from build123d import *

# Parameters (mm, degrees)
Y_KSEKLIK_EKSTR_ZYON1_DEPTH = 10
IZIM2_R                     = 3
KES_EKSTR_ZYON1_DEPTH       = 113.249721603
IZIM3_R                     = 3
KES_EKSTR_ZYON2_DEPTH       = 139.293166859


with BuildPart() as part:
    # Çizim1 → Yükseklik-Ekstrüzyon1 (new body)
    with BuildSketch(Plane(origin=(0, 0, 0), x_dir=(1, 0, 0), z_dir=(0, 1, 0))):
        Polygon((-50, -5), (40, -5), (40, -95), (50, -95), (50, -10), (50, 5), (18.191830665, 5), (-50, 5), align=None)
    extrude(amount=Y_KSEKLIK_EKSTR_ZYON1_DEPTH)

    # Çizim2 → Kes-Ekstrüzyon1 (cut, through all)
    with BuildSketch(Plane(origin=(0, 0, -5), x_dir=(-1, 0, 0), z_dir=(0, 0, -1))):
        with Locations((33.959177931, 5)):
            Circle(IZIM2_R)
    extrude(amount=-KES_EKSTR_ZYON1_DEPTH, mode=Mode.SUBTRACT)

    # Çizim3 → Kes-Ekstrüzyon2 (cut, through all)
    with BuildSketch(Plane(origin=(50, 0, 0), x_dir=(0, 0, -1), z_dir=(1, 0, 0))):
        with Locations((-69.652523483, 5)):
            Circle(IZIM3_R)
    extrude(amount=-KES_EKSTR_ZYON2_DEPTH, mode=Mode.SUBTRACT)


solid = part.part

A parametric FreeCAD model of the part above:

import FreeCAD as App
import Part
import Sketcher

V = App.Vector


def add_polygon(sketch, points):
    """Adds a closed chain of lines whose ends are joined by coincident constraints."""
    first, n = sketch.GeometryCount, len(points)
    for a, b in zip(points, points[1:] + points[:1]):
        sketch.addGeometry(Part.LineSegment(App.Vector(*a, 0), App.Vector(*b, 0)), False)
    for i in range(n):
        sketch.addConstraint(Sketcher.Constraint("Coincident", first + i, 2, first + (i + 1) % n, 1))

doc = App.newDocument("Part")
params = doc.addObject("Spreadsheet::Sheet", "Params")
for row, (alias, value) in enumerate([
    ("sketch1_width", "90 mm"),
    ("sketch1_width2", "10 mm"),
    ("pad1_length", "10 mm"),
    ("sketch2_diameter", "6 mm"),
    ("sketch3_diameter", "6 mm"),
], start=1):
    params.set(f"A{row}", alias)
    params.set(f"B{row}", "=" + value)
    params.setAlias(f"B{row}", alias)

body = doc.addObject("PartDesign::Body", "Body")

# Sketch on XZ plane
sketch1 = doc.addObject("Sketcher::SketchObject", "Sketch")
body.addObject(sketch1)
sketch1.AttachmentSupport = (doc.XZ_Plane, [""])
sketch1.MapMode = "FlatFace"
add_polygon(sketch1, [(-50, 5), (40, 5), (40, 95), (50, 95), (50, -5), (-50, -5)])  # lines 0-5
sketch1.addConstraint([
    Sketcher.Constraint("Horizontal", 0),
    Sketcher.Constraint("Vertical", 1),
    Sketcher.Constraint("Horizontal", 2),
    Sketcher.Constraint("Vertical", 3),
    Sketcher.Constraint("Horizontal", 4),
    Sketcher.Constraint("Vertical", 5),
    Sketcher.Constraint("Symmetric", 3, 2, 5, 2, -1, 1),
    Sketcher.Constraint("Equal", 0, 1),
    Sketcher.Constraint("Equal", 4, 3),
    Sketcher.Constraint("DistanceX", 0, 1, 0, 2, 90.0),
    Sketcher.Constraint("DistanceX", 2, 1, 2, 2, 10.0),
])
sketch1.setExpression("Constraints[15]", "Params.sketch1_width")
sketch1.setExpression("Constraints[16]", "Params.sketch1_width2")
pad1 = doc.addObject("PartDesign::Pad", "Pad")
body.addObject(pad1)
pad1.Profile = sketch1
pad1.setExpression("Length", "Params.pad1_length")
pad1.Reversed = True

# Sketch on XY plane
sketch2 = doc.addObject("Sketcher::SketchObject", "Sketch001")
body.addObject(sketch2)
sketch2.AttachmentSupport = (doc.XY_Plane, [""])
sketch2.MapMode = "FlatFace"
sketch2.AttachmentOffset = App.Placement(V(0, 0, -5), App.Rotation())
sketch2.addGeometry(Part.Circle(V(-34, 5, 0), V(0, 0, 1), 3), False)
sketch2.addConstraint([
    Sketcher.Constraint("Diameter", 0, 6.0),
    Sketcher.Constraint("DistanceY", -1, 1, 0, 3, 5.0),
    Sketcher.Constraint("DistanceX", 0, 3, -1, 1, 33.959178),
])
sketch2.setExpression("Constraints[0]", "Params.sketch2_diameter")
pocket1 = doc.addObject("PartDesign::Pocket", "Pocket")
body.addObject(pocket1)
pocket1.Profile = sketch2
pocket1.Type = "ThroughAll"
pocket1.Reversed = True

# Sketch on YZ plane
sketch3 = doc.addObject("Sketcher::SketchObject", "Sketch002")
body.addObject(sketch3)
sketch3.AttachmentSupport = (doc.YZ_Plane, [""])
sketch3.MapMode = "FlatFace"
sketch3.AttachmentOffset = App.Placement(V(0, 0, 50), App.Rotation())
sketch3.addGeometry(Part.Circle(V(5, 69.7, 0), V(0, 0, 1), 3), False)
sketch3.addConstraint([
    Sketcher.Constraint("Diameter", 0, 6.0),
    Sketcher.Constraint("DistanceX", -1, 1, 0, 3, 5.0),
    Sketcher.Constraint("DistanceY", -1, 1, 0, 3, 69.652523),
])
sketch3.setExpression("Constraints[0]", "Params.sketch3_diameter")
pocket2 = doc.addObject("PartDesign::Pocket", "Pocket001")
body.addObject(pocket2)
pocket2.Profile = sketch3
pocket2.Type = "ThroughAll"

doc.recompute()
